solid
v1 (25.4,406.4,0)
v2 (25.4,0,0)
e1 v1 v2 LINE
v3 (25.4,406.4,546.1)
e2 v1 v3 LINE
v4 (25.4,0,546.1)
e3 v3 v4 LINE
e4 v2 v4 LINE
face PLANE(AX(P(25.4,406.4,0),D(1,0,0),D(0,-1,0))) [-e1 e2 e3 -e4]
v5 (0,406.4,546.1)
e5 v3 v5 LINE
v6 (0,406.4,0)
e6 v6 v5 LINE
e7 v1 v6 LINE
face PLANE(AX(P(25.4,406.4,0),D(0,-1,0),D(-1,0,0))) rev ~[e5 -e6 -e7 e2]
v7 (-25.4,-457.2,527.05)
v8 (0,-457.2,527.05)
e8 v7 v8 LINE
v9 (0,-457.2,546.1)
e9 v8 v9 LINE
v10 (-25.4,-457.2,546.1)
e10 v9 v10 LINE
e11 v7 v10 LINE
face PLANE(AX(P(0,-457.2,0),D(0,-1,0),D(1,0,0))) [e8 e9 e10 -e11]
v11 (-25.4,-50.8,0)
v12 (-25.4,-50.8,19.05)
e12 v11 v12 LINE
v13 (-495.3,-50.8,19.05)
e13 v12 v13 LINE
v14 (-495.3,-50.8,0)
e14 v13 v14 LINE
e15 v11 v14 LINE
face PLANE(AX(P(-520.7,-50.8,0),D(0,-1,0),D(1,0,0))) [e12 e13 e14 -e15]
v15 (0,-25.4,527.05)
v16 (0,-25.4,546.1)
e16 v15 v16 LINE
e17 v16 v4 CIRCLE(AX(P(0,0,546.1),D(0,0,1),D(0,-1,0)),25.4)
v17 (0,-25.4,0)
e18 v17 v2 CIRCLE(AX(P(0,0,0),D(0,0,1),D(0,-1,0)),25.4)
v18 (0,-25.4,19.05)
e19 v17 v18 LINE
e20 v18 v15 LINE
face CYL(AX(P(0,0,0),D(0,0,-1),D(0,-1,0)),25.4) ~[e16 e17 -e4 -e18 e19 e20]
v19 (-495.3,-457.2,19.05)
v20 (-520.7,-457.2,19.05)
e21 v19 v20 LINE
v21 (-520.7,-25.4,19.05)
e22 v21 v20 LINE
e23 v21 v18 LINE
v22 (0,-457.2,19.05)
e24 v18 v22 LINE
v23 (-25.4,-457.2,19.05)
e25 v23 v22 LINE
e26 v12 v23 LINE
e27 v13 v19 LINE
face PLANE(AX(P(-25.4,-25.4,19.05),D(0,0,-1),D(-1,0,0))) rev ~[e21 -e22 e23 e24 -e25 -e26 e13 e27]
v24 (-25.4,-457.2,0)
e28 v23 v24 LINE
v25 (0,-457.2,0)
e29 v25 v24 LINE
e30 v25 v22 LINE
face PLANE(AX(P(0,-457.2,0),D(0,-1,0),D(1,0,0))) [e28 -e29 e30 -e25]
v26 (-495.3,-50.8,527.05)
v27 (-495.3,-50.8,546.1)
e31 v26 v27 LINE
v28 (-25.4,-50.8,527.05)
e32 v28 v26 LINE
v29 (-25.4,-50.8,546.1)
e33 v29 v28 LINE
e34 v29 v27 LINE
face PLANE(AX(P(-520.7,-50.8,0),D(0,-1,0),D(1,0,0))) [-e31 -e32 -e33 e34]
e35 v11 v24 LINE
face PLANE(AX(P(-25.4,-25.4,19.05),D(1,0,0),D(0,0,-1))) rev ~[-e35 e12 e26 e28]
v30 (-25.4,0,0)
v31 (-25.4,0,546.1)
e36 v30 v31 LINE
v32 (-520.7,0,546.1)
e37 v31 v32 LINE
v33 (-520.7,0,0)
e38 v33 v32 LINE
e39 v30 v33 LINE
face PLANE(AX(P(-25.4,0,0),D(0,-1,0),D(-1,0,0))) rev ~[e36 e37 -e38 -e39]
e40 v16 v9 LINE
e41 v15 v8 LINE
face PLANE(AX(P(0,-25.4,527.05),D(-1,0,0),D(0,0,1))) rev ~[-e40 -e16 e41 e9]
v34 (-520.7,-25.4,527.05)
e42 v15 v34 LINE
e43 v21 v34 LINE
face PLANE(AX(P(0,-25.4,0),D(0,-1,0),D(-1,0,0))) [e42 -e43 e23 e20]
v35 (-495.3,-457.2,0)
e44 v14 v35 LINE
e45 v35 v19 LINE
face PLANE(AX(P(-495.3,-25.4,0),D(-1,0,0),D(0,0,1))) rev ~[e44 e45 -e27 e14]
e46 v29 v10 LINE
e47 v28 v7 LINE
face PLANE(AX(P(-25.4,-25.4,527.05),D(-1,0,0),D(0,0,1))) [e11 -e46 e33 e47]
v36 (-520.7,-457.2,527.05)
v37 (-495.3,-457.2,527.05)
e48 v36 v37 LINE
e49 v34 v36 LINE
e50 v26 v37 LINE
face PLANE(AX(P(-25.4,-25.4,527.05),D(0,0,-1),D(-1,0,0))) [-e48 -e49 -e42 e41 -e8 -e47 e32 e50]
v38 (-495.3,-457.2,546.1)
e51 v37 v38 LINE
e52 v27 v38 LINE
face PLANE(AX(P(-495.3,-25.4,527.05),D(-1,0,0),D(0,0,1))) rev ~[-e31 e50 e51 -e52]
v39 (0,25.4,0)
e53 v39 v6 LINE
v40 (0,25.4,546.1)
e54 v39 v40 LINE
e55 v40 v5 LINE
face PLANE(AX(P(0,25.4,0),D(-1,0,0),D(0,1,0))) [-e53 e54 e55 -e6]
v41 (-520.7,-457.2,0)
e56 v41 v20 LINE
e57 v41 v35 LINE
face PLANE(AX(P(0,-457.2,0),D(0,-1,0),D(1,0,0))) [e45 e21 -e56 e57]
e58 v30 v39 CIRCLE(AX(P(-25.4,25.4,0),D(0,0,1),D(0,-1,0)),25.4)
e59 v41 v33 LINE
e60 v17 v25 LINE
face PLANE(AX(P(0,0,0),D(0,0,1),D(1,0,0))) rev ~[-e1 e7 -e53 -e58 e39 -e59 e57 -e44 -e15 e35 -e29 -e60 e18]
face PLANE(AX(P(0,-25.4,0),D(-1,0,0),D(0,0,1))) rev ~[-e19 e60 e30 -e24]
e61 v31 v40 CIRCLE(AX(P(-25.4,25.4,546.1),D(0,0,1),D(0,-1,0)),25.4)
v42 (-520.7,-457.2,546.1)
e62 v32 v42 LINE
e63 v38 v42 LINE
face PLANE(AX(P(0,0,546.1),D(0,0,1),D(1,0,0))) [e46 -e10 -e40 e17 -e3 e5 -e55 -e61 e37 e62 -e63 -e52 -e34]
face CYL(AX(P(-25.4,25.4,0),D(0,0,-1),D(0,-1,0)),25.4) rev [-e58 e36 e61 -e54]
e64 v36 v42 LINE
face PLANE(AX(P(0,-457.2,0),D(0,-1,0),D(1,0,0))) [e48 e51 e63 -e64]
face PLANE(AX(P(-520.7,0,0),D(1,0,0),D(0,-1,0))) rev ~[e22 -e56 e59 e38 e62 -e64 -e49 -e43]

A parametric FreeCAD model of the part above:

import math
import FreeCAD as App
import Part
import Sketcher

V = App.Vector
Q = App.Units.Quantity

doc = App.newDocument("Part")
body = doc.addObject("PartDesign::Body", "Body")

sketch1 = body.newObject("Sketcher::SketchObject", "Sketch")
sketch1.AttachmentSupport = (doc.getObject("XY_Plane"), [""])
sketch1.MapMode = "FlatFace"
sketch1.addGeometry(Part.ArcOfCircle(Part.Circle(V(-25, 25, 0), V(0, 0, 1), 25), math.radians(-90), math.radians(0)), False)
sketch1.addGeometry(Part.LineSegment(V(-25, 0, 0), V(-521, 0, 0)), False)
sketch1.addGeometry(Part.LineSegment(V(-521, 0, 0), V(-521, -25, 0)), False)
sketch1.addGeometry(Part.LineSegment(V(-521, -25, 0), V(0, -25, 0)), False)
sketch1.addGeometry(Part.ArcOfCircle(Part.Circle(V(0, 0, 0), V(0, 0, 1), 25), math.radians(-90), math.radians(0)), False)
sketch1.addGeometry(Part.LineSegment(V(25, 0, 0), V(25, 406, 0)), False)
sketch1.addGeometry(Part.LineSegment(V(25, 406, 0), V(0, 406, 0)), False)
sketch1.addGeometry(Part.LineSegment(V(0, 406, 0), V(0, 25, 0)), False)
sketch1.addConstraint(Sketcher.Constraint("Tangent", 0, 1, 1, 1))
sketch1.addConstraint(Sketcher.Constraint("Coincident", 1, 2, 2, 1))
sketch1.addConstraint(Sketcher.Constraint("Coincident", 2, 2, 3, 1))
sketch1.addConstraint(Sketcher.Constraint("Tangent", 3, 2, 4, 1))
sketch1.addConstraint(Sketcher.Constraint("Tangent", 4, 2, 5, 1))
sketch1.addConstraint(Sketcher.Constraint("Coincident", 5, 2, 6, 1))
sketch1.addConstraint(Sketcher.Constraint("Coincident", 6, 2, 7, 1))
sketch1.addConstraint(Sketcher.Constraint("Tangent", 7, 2, 0, 2))
sketch1.addConstraint(Sketcher.Constraint("Horizontal", 1))
sketch1.addConstraint(Sketcher.Constraint("Vertical", 2))
sketch1.addConstraint(Sketcher.Constraint("Horizontal", 3))
sketch1.addConstraint(Sketcher.Constraint("Vertical", 5))
sketch1.addConstraint(Sketcher.Constraint("Horizontal", 6))
sketch1.addConstraint(Sketcher.Constraint("Vertical", 7))
sketch1.addConstraint(Sketcher.Constraint("Coincident", 4, 3, -1, 1))
sketch1.addConstraint(Sketcher.Constraint("Equal", 0, 4))
sketch1.addConstraint(Sketcher.Constraint("Symmetric", 0, 1, 4, 2, -1, 1))
sketch1.addConstraint(Sketcher.Constraint("Radius", 0, Q("1 in")))
sketch1.addConstraint(Sketcher.Constraint("DistanceY", 5, 1, 5, 2, Q("16 in")))
sketch1.addConstraint(Sketcher.Constraint("DistanceX", 3, 1, 3, 2, Q("20.5 in")))
pad1 = body.newObject("PartDesign::Pad", "Pad")
pad1.Profile = sketch1
pad1.Length = Q("21.5 in")

sketch2 = body.newObject("Sketcher::SketchObject", "Sketch001")
sketch2.AttachmentSupport = (doc.getObject("XZ_Plane"), [""])
sketch2.MapMode = "FlatFace"
sketch2.AttachmentOffset = App.Placement(V(0, 0, 1 * 25.4), App.Rotation())
sketch2.addGeometry(Part.LineSegment(V(-25, 0, 0), V(-25, 19, 0)), False)
sketch2.addGeometry(Part.LineSegment(V(-25, 19, 0), V(-495, 19, 0)), False)
sketch2.addGeometry(Part.LineSegment(V(-495, 19, 0), V(-495, 0, 0)), False)
sketch2.addGeometry(Part.LineSegment(V(-495, 0, 0), V(-25, 0, 0)), False)
sketch2.addGeometry(Part.LineSegment(V(-25, 527, 0), V(-25, 546, 0)), False)
sketch2.addGeometry(Part.LineSegment(V(-25, 546, 0), V(-495, 546, 0)), False)
sketch2.addGeometry(Part.LineSegment(V(-495, 546, 0), V(-495, 527, 0)), False)
sketch2.addGeometry(Part.LineSegment(V(-495, 527, 0), V(-25, 527, 0)), False)
sketch2.addConstraint(Sketcher.Constraint("Coincident", 0, 2, 1, 1))
sketch2.addConstraint(Sketcher.Constraint("Coincident", 1, 2, 2, 1))
sketch2.addConstraint(Sketcher.Constraint("Coincident", 2, 2, 3, 1))
sketch2.addConstraint(Sketcher.Constraint("Coincident", 3, 2, 0, 1))
sketch2.addConstraint(Sketcher.Constraint("Coincident", 4, 2, 5, 1))
sketch2.addConstraint(Sketcher.Constraint("Coincident", 5, 2, 6, 1))
sketch2.addConstraint(Sketcher.Constraint("Coincident", 6, 2, 7, 1))
sketch2.addConstraint(Sketcher.Constraint("Coincident", 7, 2, 4, 1))
sketch2.addConstraint(Sketcher.Constraint("Vertical", 0))
sketch2.addConstraint(Sketcher.Constraint("Horizontal", 1))
sketch2.addConstraint(Sketcher.Constraint("Vertical", 2))
sketch2.addConstraint(Sketcher.Constraint("Horizontal", 3))
sketch2.addConstraint(Sketcher.Constraint("Vertical", 4))
sketch2.addConstraint(Sketcher.Constraint("Horizontal", 5))
sketch2.addConstraint(Sketcher.Constraint("Vertical", 6))
sketch2.addConstraint(Sketcher.Constraint("Horizontal", 7))
sketch2.addConstraint(Sketcher.Constraint("PointOnObject", 2, 2, -1))
sketch2.addConstraint(Sketcher.Constraint("Vertical", 3, 2, 4, 2))
sketch2.addConstraint(Sketcher.Constraint("Vertical", 2, 2, 5, 2))
sketch2.addConstraint(Sketcher.Constraint("Equal", 2, 4))
sketch2.addConstraint(Sketcher.Constraint("DistanceX", 0, 2, -1, 1, Q("1 in")))
sketch2.addConstraint(Sketcher.Constraint("DistanceY", 0, 1, 0, 2, Q("0.75 in")))
sketch2.addConstraint(Sketcher.Constraint("DistanceX", 1, 2, 1, 1, Q("18.5 in")))
sketch2.addConstraint(Sketcher.Constraint("DistanceY", 1, 2, 6, 2, Q("20 in")))
pad2 = body.newObject("PartDesign::Pad", "Pad001")
pad2.Profile = sketch2
pad2.Length = Q("1 in")

sketch3 = body.newObject("Sketcher::SketchObject", "Sketch002")
sketch3.AttachmentSupport = (doc.getObject("XZ_Plane"), [""])
sketch3.MapMode = "FlatFace"
sketch3.AttachmentOffset = App.Placement(V(0, 0, 1 * 25.4), App.Rotation())
sketch3.addGeometry(Part.LineSegment(V(-495, 527, 0), V(-495, 546, 0)), False)
sketch3.addGeometry(Part.LineSegment(V(-495, 546, 0), V(-521, 546, 0)), False)
sketch3.addGeometry(Part.LineSegment(V(-521, 546, 0), V(-521, 527, 0)), False)
sketch3.addGeometry(Part.LineSegment(V(-521, 527, 0), V(-495, 527, 0)), False)
sketch3.addGeometry(Part.LineSegment(V(0, 0, 0), V(0, 19, 0)), False)
sketch3.addGeometry(Part.LineSegment(V(0, 19, 0), V(-25, 19, 0)), False)
sketch3.addGeometry(Part.LineSegment(V(-25, 19, 0), V(-25, 0, 0)), False)
sketch3.addGeometry(Part.LineSegment(V(-25, 0, 0), V(0, 0, 0)), False)
sketch3.addGeometry(Part.LineSegment(V(-25, 546, 0), V(-25, 527, 0)), False)
sketch3.addGeometry(Part.LineSegment(V(-25, 527, 0), V(0, 527, 0)), False)
sketch3.addGeometry(Part.LineSegment(V(0, 527, 0), V(0, 546, 0)), False)
sketch3.addGeometry(Part.LineSegment(V(0, 546, 0), V(-25, 546, 0)), False)
sketch3.addGeometry(Part.LineSegment(V(-521, 0, 0), V(-495, 0, 0)), False)
sketch3.addGeometry(Part.LineSegment(V(-495, 0, 0), V(-495, 19, 0)), False)
sketch3.addGeometry(Part.LineSegment(V(-495, 19, 0), V(-521, 19, 0)), False)
sketch3.addGeometry(Part.LineSegment(V(-521, 19, 0), V(-521, 0, 0)), False)
sketch3.addConstraint(Sketcher.Constraint("Coincident", 0, 2, 1, 1))
sketch3.addConstraint(Sketcher.Constraint("Coincident", 1, 2, 2, 1))
sketch3.addConstraint(Sketcher.Constraint("Coincident", 2, 2, 3, 1))
sketch3.addConstraint(Sketcher.Constraint("Coincident", 3, 2, 0, 1))
sketch3.addConstraint(Sketcher.Constraint("Coincident", 4, 2, 5, 1))
sketch3.addConstraint(Sketcher.Constraint("Coincident", 5, 2, 6, 1))
sketch3.addConstraint(Sketcher.Constraint("Coincident", 6, 2, 7, 1))
sketch3.addConstraint(Sketcher.Constraint("Coincident", 7, 2, 4, 1))
sketch3.addConstraint(Sketcher.Constraint("Coincident", 8, 2, 9, 1))
sketch3.addConstraint(Sketcher.Constraint("Coincident", 9, 2, 10, 1))
sketch3.addConstraint(Sketcher.Constraint("Coincident", 10, 2, 11, 1))
sketch3.addConstraint(Sketcher.Constraint("Coincident", 11, 2, 8, 1))
sketch3.addConstraint(Sketcher.Constraint("Coincident", 12, 2, 13, 1))
sketch3.addConstraint(Sketcher.Constraint("Coincident", 13, 2, 14, 1))
sketch3.addConstraint(Sketcher.Constraint("Coincident", 14, 2, 15, 1))
sketch3.addConstraint(Sketcher.Constraint("Coincident", 15, 2, 12, 1))
sketch3.addConstraint(Sketcher.Constraint("Vertical", 0))
sketch3.addConstraint(Sketcher.Constraint("Horizontal", 1))
sketch3.addConstraint(Sketcher.Constraint("Vertical", 2))
sketch3.addConstraint(Sketcher.Constraint("Horizontal", 3))
sketch3.addConstraint(Sketcher.Constraint("Vertical", 4))
sketch3.addConstraint(Sketcher.Constraint("Horizontal", 5))
sketch3.addConstraint(Sketcher.Constraint("Vertical", 6))
sketch3.addConstraint(Sketcher.Constraint("Horizontal", 7))
sketch3.addConstraint(Sketcher.Constraint("Vertical", 8))
sketch3.addConstraint(Sketcher.Constraint("Horizontal", 9))
sketch3.addConstraint(Sketcher.Constraint("Vertical", 10))
sketch3.addConstraint(Sketcher.Constraint("Horizontal", 11))
sketch3.addConstraint(Sketcher.Constraint("Horizontal", 12))
sketch3.addConstraint(Sketcher.Constraint("Vertical", 13))
sketch3.addConstraint(Sketcher.Constraint("Horizontal", 14))
sketch3.addConstraint(Sketcher.Constraint("Vertical", 15))
sketch3.addConstraint(Sketcher.Constraint("Coincident", 7, 2, -1, 1))
sketch3.addConstraint(Sketcher.Constraint("PointOnObject", 9, 2, -2))
sketch3.addConstraint(Sketcher.Constraint("PointOnObject", 12, 2, -1))
sketch3.addConstraint(Sketcher.Constraint("Horizontal", 3, 2, 8, 2))
sketch3.addConstraint(Sketcher.Constraint("Horizontal", 1, 2, 10, 2))
sketch3.addConstraint(Sketcher.Constraint("Horizontal", 5, 2, 13, 2))
sketch3.addConstraint(Sketcher.Constraint("Vertical", 6, 2, 8, 2))
sketch3.addConstraint(Sketcher.Constraint("Vertical", 3, 2, 12, 2))
sketch3.addConstraint(Sketcher.Constraint("Vertical", 2, 2, 14, 2))
sketch3.addConstraint(Sketcher.Constraint("Equal", 3, 5))
sketch3.addConstraint(Sketcher.Constraint("Equal", 2, 4))
sketch3.addConstraint(Sketcher.Constraint("DistanceX", 1, 2, 1, 1, Q("1 in")))
sketch3.addConstraint(Sketcher.Constraint("DistanceY", 4, 2, 3, 2, Q("20 in")))
sketch3.addConstraint(Sketcher.Constraint("DistanceY", 0, 1, 0, 2, Q("0.75 in")))
sketch3.addConstraint(Sketcher.Constraint("DistanceX", 0, 2, -1, 1, Q("19.5 in")))
pad3 = body.newObject("PartDesign::Pad", "Pad002")
pad3.Profile = sketch3
pad3.Length = Q("17 in")

doc.recompute()
